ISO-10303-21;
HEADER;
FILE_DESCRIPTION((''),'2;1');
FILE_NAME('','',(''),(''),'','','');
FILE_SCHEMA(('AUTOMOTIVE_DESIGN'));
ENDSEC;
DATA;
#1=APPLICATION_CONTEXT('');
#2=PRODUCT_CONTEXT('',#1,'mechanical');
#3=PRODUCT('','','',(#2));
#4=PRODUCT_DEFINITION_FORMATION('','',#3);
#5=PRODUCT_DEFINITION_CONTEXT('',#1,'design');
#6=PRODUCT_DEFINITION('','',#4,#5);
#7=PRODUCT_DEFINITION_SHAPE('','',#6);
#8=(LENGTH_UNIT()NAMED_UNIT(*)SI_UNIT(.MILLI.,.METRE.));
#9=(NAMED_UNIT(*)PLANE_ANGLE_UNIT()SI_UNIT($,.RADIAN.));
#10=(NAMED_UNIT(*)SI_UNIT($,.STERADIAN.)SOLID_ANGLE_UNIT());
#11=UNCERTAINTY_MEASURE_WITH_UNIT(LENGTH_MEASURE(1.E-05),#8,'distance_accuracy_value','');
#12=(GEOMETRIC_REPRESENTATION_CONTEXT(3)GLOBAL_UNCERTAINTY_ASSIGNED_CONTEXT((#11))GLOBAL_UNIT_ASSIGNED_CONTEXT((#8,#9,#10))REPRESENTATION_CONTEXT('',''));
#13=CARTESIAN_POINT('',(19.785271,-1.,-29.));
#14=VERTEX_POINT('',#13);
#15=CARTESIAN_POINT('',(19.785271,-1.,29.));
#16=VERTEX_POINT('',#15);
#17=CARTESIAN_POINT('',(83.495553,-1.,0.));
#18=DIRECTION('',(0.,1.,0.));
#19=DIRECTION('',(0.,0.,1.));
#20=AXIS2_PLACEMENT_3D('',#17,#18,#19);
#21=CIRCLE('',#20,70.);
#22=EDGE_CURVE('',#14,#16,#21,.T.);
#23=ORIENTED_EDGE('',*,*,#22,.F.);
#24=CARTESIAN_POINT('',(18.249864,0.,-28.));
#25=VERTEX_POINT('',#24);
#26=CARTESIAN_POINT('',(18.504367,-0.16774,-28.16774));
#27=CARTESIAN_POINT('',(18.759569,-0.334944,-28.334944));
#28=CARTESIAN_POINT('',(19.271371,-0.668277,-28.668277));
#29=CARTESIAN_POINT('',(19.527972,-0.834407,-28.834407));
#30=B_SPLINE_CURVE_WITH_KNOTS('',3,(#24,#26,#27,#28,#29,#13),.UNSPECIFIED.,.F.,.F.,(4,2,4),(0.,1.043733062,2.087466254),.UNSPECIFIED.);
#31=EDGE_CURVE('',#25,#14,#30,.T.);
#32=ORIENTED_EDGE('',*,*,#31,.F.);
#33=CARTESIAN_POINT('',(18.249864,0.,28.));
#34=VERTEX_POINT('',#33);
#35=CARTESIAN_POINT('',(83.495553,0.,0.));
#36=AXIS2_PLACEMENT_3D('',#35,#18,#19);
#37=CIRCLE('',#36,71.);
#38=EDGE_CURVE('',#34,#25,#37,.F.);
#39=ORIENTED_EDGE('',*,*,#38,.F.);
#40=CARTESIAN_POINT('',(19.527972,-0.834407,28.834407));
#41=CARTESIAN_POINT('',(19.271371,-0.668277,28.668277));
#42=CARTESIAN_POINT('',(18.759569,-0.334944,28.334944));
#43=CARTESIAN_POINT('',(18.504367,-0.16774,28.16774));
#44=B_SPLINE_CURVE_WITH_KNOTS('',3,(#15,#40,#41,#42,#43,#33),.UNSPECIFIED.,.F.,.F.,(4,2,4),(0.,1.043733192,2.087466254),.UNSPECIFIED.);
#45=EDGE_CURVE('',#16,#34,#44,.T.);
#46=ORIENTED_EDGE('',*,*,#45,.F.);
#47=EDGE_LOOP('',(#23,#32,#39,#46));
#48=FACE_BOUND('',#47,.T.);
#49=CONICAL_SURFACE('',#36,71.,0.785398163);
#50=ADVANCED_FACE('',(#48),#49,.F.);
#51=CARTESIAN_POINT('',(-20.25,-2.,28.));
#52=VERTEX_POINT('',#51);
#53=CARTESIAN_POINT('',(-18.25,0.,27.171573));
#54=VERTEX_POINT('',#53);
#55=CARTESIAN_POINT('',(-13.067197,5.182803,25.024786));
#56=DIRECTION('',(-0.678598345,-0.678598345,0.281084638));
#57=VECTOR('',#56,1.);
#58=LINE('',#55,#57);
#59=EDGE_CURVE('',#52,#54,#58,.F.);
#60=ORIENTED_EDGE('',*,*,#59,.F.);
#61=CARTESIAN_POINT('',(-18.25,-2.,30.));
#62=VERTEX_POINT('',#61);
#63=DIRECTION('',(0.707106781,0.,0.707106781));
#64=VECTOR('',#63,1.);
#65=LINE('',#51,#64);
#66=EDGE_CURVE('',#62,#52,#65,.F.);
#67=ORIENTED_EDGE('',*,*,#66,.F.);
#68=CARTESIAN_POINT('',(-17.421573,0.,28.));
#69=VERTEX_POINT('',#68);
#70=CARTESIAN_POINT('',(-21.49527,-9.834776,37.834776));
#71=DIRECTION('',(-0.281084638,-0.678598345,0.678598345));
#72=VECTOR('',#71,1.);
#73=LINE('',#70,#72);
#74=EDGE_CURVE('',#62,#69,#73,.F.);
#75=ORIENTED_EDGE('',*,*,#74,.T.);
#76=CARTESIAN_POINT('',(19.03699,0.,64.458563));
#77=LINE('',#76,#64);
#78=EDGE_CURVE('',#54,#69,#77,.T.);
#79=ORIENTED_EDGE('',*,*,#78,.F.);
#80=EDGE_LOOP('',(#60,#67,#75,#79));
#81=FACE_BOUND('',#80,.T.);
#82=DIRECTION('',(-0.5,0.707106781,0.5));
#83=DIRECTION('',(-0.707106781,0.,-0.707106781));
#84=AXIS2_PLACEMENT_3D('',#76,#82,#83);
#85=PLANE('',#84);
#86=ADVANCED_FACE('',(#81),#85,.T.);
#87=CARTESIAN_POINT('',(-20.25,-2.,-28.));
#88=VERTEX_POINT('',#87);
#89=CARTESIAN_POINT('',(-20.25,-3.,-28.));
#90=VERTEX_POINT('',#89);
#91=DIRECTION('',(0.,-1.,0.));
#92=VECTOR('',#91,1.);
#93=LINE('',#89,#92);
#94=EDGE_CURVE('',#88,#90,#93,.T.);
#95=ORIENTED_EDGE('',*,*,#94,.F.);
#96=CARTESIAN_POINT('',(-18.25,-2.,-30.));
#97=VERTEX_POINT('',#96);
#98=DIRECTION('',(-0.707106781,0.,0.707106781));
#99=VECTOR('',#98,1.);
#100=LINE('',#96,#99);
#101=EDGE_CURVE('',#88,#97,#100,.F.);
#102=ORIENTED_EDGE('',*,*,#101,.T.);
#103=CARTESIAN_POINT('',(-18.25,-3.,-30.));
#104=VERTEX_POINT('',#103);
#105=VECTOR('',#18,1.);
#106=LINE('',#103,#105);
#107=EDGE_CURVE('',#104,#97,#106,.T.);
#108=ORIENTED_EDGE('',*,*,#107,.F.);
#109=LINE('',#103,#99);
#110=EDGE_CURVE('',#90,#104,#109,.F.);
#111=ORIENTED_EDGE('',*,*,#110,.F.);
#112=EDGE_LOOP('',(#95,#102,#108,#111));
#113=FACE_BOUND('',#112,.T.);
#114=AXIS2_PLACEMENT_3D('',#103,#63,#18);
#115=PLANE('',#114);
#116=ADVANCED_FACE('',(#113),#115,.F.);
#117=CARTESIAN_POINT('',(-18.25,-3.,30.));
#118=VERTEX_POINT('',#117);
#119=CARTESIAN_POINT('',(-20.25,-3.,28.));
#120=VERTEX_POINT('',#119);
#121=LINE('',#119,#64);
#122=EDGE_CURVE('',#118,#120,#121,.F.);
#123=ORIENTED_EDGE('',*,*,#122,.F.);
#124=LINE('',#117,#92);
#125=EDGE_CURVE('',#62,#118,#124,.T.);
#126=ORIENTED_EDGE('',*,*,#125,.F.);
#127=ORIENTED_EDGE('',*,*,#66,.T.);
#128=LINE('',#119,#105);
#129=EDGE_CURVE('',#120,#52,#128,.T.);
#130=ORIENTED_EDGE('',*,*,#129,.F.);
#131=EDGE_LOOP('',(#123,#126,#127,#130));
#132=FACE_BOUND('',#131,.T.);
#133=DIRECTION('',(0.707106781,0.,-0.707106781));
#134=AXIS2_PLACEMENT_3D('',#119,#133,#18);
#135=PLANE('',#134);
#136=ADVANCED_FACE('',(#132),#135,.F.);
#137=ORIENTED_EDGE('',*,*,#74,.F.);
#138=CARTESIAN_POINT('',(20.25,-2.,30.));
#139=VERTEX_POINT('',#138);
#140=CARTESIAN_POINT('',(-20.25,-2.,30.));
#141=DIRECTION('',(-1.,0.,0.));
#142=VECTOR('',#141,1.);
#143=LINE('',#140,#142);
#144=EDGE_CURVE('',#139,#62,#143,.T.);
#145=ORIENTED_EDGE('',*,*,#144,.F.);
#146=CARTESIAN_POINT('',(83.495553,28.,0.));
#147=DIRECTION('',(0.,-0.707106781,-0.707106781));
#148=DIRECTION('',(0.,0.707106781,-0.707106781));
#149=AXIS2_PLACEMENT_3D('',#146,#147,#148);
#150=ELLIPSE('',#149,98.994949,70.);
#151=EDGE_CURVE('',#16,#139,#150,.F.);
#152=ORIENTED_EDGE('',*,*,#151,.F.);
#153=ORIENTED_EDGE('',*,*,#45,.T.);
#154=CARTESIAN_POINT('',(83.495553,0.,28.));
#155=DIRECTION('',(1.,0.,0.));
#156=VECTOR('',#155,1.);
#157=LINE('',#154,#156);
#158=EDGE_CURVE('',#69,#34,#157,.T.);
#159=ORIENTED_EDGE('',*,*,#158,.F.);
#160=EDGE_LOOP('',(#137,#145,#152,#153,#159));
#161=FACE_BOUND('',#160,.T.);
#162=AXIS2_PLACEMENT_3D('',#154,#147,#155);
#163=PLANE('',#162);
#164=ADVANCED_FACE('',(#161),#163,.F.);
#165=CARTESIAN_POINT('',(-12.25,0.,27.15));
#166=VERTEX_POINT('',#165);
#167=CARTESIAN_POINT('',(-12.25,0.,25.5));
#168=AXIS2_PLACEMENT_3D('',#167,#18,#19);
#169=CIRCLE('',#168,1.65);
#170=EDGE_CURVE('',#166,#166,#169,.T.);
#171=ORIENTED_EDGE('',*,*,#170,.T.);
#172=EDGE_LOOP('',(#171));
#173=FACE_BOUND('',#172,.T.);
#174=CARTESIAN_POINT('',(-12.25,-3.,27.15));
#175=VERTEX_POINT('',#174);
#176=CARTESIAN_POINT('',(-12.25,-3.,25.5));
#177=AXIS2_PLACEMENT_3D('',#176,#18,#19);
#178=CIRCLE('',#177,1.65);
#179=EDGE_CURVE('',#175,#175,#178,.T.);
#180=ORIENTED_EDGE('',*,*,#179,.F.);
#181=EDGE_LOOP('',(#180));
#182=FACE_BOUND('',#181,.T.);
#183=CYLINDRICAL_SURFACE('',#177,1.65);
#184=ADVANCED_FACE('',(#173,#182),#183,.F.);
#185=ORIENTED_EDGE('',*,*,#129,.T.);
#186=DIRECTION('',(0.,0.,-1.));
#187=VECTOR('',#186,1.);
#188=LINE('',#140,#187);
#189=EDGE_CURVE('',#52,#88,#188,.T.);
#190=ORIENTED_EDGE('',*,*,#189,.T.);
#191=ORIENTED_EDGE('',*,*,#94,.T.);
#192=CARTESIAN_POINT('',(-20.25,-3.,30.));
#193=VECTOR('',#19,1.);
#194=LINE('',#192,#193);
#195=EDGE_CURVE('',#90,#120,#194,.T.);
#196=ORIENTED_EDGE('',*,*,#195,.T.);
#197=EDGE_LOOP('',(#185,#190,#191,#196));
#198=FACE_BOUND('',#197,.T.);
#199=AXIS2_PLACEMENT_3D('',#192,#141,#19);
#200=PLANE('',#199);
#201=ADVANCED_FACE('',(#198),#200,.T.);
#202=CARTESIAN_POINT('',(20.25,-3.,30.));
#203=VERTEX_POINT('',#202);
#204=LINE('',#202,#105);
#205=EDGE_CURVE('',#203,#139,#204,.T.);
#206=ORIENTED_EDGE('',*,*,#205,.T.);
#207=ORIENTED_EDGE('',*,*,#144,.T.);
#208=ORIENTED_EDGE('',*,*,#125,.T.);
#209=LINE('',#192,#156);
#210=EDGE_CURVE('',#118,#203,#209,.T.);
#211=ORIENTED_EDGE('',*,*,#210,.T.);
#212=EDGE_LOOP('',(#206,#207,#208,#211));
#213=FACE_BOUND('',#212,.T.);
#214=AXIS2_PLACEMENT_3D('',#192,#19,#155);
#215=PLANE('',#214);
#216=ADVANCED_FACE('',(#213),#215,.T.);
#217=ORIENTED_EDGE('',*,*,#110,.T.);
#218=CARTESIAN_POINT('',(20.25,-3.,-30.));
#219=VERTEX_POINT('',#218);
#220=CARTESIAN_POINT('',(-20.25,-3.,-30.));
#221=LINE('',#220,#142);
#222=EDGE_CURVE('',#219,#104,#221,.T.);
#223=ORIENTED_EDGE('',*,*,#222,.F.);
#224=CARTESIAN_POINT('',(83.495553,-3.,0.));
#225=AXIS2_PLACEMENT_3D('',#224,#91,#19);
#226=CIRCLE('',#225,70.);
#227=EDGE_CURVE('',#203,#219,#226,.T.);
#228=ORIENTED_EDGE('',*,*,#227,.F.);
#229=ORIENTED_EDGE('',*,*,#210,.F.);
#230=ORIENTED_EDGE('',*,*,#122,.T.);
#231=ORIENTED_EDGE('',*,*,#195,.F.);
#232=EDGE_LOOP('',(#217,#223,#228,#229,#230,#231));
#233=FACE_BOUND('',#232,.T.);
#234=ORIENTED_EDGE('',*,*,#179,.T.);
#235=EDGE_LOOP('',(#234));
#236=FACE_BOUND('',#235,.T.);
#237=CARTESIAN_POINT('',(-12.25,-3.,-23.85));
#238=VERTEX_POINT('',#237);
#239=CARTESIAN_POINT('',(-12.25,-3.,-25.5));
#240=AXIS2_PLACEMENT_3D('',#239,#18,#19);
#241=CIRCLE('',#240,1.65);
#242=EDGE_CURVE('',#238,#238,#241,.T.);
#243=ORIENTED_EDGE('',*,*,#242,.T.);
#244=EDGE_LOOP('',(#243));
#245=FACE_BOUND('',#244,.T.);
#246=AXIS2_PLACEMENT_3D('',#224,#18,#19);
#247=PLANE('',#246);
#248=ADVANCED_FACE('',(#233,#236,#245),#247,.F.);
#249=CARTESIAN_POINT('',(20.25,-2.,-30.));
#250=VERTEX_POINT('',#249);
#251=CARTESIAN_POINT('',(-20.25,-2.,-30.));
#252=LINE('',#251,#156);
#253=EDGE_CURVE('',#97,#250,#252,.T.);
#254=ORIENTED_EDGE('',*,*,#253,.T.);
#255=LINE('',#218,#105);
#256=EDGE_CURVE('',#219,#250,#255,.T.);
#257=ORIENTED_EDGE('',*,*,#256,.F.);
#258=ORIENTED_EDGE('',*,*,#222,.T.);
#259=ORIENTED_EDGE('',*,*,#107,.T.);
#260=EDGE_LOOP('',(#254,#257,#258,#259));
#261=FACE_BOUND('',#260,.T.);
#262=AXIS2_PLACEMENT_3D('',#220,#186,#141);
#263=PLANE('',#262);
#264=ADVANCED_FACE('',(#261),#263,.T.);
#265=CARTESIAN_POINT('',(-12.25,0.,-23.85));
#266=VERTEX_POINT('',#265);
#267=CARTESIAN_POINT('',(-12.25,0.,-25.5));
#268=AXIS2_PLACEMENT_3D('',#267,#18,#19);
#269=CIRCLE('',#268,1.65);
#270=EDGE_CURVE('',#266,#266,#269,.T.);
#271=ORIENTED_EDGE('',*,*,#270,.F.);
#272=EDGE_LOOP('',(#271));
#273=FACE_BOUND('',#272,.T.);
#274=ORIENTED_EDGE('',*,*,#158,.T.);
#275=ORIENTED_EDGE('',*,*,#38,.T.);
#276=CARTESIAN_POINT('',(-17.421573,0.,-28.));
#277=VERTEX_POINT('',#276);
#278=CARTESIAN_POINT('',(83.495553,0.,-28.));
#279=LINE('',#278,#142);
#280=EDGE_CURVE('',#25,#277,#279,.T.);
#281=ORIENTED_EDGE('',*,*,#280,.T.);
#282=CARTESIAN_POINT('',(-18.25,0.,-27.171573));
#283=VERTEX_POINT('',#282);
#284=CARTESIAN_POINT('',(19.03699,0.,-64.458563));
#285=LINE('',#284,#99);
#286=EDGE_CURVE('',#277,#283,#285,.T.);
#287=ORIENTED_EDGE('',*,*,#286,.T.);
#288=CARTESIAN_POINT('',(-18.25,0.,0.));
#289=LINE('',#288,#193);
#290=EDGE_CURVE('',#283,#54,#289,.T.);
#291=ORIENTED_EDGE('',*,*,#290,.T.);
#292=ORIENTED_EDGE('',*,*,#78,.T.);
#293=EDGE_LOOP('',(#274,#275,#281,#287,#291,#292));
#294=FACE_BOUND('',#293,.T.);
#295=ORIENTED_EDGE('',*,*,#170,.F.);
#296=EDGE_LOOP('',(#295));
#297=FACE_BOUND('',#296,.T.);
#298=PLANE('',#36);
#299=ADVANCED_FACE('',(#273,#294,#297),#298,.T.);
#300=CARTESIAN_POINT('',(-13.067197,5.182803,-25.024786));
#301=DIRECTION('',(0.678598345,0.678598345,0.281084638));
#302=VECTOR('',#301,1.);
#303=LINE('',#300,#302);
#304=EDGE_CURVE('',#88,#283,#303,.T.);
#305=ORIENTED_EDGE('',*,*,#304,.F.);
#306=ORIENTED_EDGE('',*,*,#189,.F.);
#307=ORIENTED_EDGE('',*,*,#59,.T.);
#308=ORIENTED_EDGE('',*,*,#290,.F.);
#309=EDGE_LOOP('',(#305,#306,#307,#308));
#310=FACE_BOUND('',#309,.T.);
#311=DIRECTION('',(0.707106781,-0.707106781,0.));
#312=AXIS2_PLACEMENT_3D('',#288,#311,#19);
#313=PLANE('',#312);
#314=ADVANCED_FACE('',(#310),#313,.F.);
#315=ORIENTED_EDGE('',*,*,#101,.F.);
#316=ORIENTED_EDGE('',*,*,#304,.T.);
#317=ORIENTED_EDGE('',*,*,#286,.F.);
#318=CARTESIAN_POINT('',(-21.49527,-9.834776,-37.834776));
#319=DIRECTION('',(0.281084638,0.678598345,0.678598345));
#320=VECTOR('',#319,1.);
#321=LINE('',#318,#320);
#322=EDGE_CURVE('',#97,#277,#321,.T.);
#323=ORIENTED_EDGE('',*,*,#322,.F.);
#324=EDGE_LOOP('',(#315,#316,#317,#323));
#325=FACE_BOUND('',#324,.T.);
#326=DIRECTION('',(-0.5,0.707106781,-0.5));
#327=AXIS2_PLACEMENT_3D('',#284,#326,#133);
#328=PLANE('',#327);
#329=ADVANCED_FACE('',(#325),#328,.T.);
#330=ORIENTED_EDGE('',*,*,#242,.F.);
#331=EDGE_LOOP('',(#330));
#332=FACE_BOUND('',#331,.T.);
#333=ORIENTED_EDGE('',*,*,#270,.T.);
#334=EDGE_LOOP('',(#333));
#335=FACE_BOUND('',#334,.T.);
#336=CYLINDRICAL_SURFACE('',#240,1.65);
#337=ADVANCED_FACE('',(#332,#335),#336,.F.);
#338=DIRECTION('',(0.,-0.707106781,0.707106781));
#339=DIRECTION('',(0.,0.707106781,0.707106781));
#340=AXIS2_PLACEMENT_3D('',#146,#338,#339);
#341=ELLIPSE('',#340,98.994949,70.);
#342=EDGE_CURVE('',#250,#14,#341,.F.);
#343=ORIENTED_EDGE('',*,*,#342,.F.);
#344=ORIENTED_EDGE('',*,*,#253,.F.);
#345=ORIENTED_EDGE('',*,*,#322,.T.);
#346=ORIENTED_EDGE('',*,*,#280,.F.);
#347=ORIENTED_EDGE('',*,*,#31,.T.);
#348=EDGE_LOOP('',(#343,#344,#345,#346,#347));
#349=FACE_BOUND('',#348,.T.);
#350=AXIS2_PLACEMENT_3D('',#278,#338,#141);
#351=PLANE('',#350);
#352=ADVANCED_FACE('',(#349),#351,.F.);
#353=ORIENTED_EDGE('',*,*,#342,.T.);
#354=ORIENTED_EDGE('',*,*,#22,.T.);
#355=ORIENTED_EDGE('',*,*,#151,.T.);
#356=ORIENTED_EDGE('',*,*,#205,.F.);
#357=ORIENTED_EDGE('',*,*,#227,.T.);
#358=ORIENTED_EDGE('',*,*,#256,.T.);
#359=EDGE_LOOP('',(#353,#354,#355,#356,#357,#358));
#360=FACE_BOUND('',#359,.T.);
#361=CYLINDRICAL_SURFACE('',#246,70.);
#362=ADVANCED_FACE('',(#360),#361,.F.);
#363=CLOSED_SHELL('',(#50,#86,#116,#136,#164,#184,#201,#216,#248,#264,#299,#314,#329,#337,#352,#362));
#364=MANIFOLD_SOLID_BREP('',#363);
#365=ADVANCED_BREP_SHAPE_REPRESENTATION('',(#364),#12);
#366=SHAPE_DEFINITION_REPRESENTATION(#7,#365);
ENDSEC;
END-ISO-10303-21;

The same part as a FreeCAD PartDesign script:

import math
import FreeCAD as App
import Part
import Sketcher
from FreeCAD import Vector


def edges_at(feature, points):
    """Names of the edges that pass closest to the given points."""
    edges = feature.Shape.Edges
    near = lambda p: min(range(len(edges)), key=lambda i: edges[i].distToShape(Part.Vertex(*p))[0])
    return sorted({f"Edge{near(p) + 1}" for p in points})

doc = App.newDocument("Part")
params = doc.addObject("Spreadsheet::Sheet", "Params")
for row, (alias, value) in enumerate([
    ("sketch1_radius", "70 mm"),
    ("sketch1_diameter", "3.3 mm"),
    ("sketch1_height", "60 mm"),
    ("sketch1_width", "40.5 mm"),
    ("pad1_length", "3 mm"),
    ("chamfer_size", "2 mm"),
    ("chamfer2_size", "2 mm"),
    ("chamfer3_size", "1 mm"),
], start=1):
    params.set(f"A{row}", alias)
    params.set(f"B{row}", "=" + value)
    params.setAlias(f"B{row}", alias)

body = doc.addObject("PartDesign::Body", "Body")

sketch1 = body.newObject("Sketcher::SketchObject", "Sketch")
sketch1.AttachmentSupport = (doc.getObject("XZ_Plane"), [""])
sketch1.MapMode = "FlatFace"
sketch1.addGeometry([
    Part.LineSegment(Vector(-20.25, 30, 0), Vector(20.25, 30, 0)),
    Part.ArcOfCircle(Part.Circle(Vector(83.495553, 0, 0), Vector(0, 0, 1), 70), math.radians(154.623066), math.radians(205.376934)),
    Part.LineSegment(Vector(20.25, -30, 0), Vector(-20.25, -30, 0)),
    Part.LineSegment(Vector(-20.25, -30, 0), Vector(-20.25, 30, 0)),
    Part.Circle(Vector(-12.25, 25.5, 0), Vector(0, 0, 1), 1.65),
    Part.Circle(Vector(-12.25, -25.5, 0), Vector(0, 0, 1), 1.65),
], False)
sketch1.addConstraint([
    Sketcher.Constraint("Coincident", 0, 2, 1, 1),
    Sketcher.Constraint("Coincident", 1, 2, 2, 1),
    Sketcher.Constraint("Coincident", 2, 2, 3, 1),
    Sketcher.Constraint("Coincident", 3, 2, 0, 1),
    Sketcher.Constraint("Horizontal", 0),
    Sketcher.Constraint("Horizontal", 2),
    Sketcher.Constraint("Vertical", 3),
    Sketcher.Constraint("Equal", 4, 5),
    Sketcher.Constraint("Symmetric", 0, 2, 2, 2, -1, 1),
    Sketcher.Constraint("Symmetric", 4, 3, 5, 3, -1),
    Sketcher.Constraint("PointOnObject", 1, 3, -1),
    Sketcher.Constraint("Radius", 1, 70.0),
    Sketcher.Constraint("Diameter", 4, 3.3),
    Sketcher.Constraint("DistanceY", 3, 1, 3, 2, 60.0),
    Sketcher.Constraint("DistanceX", 0, 1, 0, 2, 40.5),
    Sketcher.Constraint("DistanceY", 5, 3, 4, 3, 51.0),
    Sketcher.Constraint("DistanceX", 2, 2, 5, 3, 8.0),
])
sketch1.setExpression("Constraints[11]", "Params.sketch1_radius")
sketch1.setExpression("Constraints[12]", "Params.sketch1_diameter")
sketch1.setExpression("Constraints[13]", "Params.sketch1_height")
sketch1.setExpression("Constraints[14]", "Params.sketch1_width")
pad1 = body.newObject("PartDesign::Pad", "Pad")
pad1.Profile = sketch1
pad1.setExpression("Length", "Params.pad1_length")
doc.recompute()

chamfer = body.newObject("PartDesign::Chamfer", "Chamfer")
chamfer.Base = (pad1, edges_at(pad1, [(-20.25, -1.5, 30), (-20.25, -1.5, -30)]))
chamfer.setExpression("Size", "Params.chamfer_size")
doc.recompute()

chamfer2 = body.newObject("PartDesign::Chamfer", "Chamfer001")
chamfer2.Base = (chamfer, edges_at(chamfer, [
    (-20.25, 0, 0),
    (1, 0, 30),
    (-19.25, 0, -29),
    (-19.25, 0, 29),
    (1, 0, -30),
]))
chamfer2.setExpression("Size", "Params.chamfer2_size")
doc.recompute()

chamfer3 = body.newObject("PartDesign::Chamfer", "Chamfer002")
chamfer3.Base = (chamfer2, edges_at(chamfer2, [(13.496, 0, 0)]))
chamfer3.setExpression("Size", "Params.chamfer3_size")

doc.recompute()
